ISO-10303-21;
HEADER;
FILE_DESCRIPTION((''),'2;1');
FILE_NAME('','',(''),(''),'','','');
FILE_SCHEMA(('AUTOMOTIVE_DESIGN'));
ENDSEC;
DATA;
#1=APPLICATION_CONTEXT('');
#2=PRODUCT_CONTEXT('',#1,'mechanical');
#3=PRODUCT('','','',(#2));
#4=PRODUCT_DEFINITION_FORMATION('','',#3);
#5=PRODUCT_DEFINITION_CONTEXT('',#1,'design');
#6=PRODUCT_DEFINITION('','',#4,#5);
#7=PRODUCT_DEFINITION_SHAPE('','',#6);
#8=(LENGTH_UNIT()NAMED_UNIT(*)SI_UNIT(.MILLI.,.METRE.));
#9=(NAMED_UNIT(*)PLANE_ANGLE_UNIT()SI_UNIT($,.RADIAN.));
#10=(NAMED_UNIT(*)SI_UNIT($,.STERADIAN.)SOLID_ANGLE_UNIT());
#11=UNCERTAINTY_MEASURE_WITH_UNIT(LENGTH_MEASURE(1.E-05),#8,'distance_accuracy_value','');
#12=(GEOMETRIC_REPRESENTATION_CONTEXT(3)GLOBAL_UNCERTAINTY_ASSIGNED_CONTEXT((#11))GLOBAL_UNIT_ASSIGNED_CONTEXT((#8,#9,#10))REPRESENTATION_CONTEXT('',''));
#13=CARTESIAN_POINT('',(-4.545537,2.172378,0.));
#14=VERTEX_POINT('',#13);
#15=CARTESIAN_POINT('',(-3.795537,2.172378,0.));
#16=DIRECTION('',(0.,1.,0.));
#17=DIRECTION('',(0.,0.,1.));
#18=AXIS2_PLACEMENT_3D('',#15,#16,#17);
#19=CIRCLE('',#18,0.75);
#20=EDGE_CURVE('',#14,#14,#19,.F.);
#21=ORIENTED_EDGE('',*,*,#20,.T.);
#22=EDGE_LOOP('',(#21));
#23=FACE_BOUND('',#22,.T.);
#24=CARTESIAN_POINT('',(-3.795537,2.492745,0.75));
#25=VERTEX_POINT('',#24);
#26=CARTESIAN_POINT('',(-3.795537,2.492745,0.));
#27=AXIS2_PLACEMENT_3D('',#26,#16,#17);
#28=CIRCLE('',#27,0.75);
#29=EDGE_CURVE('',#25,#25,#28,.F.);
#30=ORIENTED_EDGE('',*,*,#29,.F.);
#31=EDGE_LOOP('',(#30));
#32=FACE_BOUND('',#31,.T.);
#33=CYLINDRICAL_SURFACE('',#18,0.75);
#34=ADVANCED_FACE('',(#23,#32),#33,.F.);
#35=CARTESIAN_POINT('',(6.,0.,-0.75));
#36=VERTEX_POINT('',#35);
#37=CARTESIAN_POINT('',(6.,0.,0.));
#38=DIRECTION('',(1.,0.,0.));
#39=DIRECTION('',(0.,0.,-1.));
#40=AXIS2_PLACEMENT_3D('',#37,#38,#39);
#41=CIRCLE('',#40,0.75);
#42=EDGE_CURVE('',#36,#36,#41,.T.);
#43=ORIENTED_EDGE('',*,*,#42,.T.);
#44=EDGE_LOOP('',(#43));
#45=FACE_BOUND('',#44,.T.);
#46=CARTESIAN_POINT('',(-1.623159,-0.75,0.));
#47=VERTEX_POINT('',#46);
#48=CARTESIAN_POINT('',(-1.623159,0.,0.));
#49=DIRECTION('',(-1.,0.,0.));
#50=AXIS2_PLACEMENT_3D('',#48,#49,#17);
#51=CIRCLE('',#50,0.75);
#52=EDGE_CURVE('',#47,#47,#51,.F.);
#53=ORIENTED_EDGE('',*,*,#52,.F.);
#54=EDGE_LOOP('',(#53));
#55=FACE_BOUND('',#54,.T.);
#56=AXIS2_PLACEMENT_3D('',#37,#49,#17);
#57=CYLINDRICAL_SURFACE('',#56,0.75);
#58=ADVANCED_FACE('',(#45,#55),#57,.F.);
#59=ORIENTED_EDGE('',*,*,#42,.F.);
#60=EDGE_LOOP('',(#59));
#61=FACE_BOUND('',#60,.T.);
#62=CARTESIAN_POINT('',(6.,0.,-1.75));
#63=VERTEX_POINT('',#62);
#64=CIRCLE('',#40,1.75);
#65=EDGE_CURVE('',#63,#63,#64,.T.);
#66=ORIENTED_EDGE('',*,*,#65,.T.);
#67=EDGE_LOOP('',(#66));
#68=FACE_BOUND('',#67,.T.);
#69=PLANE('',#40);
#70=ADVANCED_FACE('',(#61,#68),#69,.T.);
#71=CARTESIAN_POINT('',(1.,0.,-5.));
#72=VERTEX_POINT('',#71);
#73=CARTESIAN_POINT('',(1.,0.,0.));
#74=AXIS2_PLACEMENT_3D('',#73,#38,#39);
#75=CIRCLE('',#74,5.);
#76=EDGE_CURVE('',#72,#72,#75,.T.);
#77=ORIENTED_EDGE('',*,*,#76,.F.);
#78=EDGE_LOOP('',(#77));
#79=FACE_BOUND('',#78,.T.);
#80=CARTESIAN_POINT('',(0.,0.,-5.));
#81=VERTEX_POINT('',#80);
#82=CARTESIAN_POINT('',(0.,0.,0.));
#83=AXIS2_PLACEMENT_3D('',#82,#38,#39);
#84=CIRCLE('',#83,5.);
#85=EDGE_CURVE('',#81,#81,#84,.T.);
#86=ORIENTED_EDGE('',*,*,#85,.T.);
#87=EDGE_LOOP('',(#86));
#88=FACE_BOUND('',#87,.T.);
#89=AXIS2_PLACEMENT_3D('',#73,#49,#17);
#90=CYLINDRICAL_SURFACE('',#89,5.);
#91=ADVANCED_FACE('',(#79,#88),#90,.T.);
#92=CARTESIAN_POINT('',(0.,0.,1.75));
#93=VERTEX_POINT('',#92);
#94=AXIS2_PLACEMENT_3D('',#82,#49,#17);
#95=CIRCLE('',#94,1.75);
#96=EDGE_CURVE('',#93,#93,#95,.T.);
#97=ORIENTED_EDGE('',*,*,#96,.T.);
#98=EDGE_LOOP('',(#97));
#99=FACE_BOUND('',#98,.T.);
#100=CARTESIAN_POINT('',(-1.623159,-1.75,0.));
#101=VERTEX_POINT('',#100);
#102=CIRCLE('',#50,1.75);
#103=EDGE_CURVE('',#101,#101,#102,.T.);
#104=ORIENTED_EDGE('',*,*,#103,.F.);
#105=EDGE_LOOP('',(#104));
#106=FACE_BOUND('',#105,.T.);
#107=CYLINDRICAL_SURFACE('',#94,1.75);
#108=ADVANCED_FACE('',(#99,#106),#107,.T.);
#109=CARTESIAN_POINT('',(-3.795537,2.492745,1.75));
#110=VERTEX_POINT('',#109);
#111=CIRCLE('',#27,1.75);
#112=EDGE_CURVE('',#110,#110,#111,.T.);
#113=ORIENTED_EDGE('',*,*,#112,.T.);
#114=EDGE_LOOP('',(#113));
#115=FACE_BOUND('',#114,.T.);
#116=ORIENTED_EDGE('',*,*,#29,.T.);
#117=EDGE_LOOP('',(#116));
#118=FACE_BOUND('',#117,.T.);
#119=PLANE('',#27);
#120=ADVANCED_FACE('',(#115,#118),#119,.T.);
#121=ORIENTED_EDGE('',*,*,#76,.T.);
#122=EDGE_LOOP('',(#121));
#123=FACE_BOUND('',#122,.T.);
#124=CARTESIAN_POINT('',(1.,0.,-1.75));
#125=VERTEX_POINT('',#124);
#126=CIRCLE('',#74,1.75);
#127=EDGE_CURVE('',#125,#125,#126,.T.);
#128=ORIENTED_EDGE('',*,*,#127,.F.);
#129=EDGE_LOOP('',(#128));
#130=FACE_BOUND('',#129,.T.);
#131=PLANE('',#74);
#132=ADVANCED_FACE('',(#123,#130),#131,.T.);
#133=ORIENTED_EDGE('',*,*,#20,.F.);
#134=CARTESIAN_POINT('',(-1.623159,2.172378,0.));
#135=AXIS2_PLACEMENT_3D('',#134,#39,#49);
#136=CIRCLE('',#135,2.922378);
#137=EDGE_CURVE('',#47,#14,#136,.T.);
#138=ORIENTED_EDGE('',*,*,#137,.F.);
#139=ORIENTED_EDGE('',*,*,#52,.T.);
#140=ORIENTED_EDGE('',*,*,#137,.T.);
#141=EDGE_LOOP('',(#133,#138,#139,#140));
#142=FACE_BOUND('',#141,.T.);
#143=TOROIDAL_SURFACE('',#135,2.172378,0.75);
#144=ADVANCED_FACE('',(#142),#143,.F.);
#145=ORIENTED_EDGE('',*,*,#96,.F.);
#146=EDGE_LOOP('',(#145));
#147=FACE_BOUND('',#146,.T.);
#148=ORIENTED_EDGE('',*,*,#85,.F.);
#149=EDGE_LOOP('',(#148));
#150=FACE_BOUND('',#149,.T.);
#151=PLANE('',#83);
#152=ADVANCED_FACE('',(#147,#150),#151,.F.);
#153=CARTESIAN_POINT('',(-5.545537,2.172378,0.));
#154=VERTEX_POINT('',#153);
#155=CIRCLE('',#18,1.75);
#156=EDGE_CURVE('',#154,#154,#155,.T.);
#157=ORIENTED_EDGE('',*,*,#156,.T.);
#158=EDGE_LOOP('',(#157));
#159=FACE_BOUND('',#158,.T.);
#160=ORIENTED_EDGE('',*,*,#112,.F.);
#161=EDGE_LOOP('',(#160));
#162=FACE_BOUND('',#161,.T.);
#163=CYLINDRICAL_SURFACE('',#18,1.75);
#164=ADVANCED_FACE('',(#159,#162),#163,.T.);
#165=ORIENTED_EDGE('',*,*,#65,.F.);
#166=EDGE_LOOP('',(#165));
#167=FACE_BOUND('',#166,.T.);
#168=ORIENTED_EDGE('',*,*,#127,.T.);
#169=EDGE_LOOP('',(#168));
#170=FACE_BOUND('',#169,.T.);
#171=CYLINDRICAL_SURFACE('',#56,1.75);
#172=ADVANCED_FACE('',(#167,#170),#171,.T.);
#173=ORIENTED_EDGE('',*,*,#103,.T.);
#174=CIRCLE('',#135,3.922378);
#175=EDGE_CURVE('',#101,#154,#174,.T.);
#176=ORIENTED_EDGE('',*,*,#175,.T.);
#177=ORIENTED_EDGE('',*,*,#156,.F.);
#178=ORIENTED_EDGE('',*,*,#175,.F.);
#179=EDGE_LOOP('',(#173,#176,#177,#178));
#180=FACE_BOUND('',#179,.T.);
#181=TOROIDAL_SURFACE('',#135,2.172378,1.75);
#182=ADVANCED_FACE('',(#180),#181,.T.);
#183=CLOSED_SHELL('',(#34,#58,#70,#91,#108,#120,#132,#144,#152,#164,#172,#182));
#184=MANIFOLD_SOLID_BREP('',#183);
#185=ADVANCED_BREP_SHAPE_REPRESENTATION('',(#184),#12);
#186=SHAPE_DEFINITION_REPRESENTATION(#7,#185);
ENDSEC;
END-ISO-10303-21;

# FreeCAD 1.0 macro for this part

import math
import FreeCAD as App
import Part
import Sketcher

doc = App.newDocument("Part")
params = doc.addObject("Spreadsheet::Sheet", "Params")
for row, (alias, value) in enumerate([
    ("sketch1_diameter", "10 mm"),
    ("pad1_length", "1 mm"),
    ("sketch2_diameter", "3.5 mm"),
    ("sketch2_diameter2", "1.5 mm"),
    ("pad2_length", "5 mm"),
    ("sketch3_diameter", "1.5 mm"),
    ("pocket1_length", "10 mm"),
    ("sketch4_diameter", "3.5 mm"),
    ("sketch4_diameter2", "1.5 mm"),
], start=1):
    params.set(f"A{row}", alias)
    params.set(f"B{row}", "=" + value)
    params.setAlias(f"B{row}", alias)

body = doc.addObject("PartDesign::Body", "Body")

sketch1 = body.newObject("Sketcher::SketchObject", "Sketch")
sketch1.AttachmentSupport = (doc.getObject("YZ_Plane"), [""])
sketch1.MapMode = "FlatFace"
sketch1.addGeometry(Part.Circle(App.Vector(0, 0, 0), App.Vector(0, 0, 1), 5), False)
sketch1.addConstraint([
    Sketcher.Constraint("Coincident", 0, 3, -1, 1),
    Sketcher.Constraint("Diameter", 0, 10.0),
])
sketch1.setExpression("Constraints[1]", "Params.sketch1_diameter")
pad1 = body.newObject("PartDesign::Pad", "Pad")
pad1.Profile = sketch1
pad1.setExpression("Length", "Params.pad1_length")

sketch2 = body.newObject("Sketcher::SketchObject", "Sketch001")
sketch2.AttachmentSupport = (doc.getObject("YZ_Plane"), [""])
sketch2.MapMode = "FlatFace"
sketch2.AttachmentOffset = App.Placement(App.Vector(0, 0, 1), App.Rotation())
sketch2.addGeometry([
    Part.Circle(App.Vector(0, 0, 0), App.Vector(0, 0, 1), 1.75),
    Part.Circle(App.Vector(0, 0, 0), App.Vector(0, 0, 1), 0.75),
], False)
sketch2.addConstraint([
    Sketcher.Constraint("Coincident", 0, 3, -1, 1),
    Sketcher.Constraint("Coincident", 1, 3, -1, 1),
    Sketcher.Constraint("Diameter", 0, 3.5),
    Sketcher.Constraint("Diameter", 1, 1.5),
])
sketch2.setExpression("Constraints[2]", "Params.sketch2_diameter")
sketch2.setExpression("Constraints[3]", "Params.sketch2_diameter2")
pad2 = body.newObject("PartDesign::Pad", "Pad001")
pad2.Profile = sketch2
pad2.setExpression("Length", "Params.pad2_length")

sketch3 = body.newObject("Sketcher::SketchObject", "Sketch002")
sketch3.AttachmentSupport = (doc.getObject("YZ_Plane"), [""])
sketch3.MapMode = "FlatFace"
sketch3.addGeometry(Part.Circle(App.Vector(0, 0, 0), App.Vector(0, 0, 1), 0.75), False)
sketch3.addConstraint([
    Sketcher.Constraint("Coincident", 0, 3, -1, 1),
    Sketcher.Constraint("Diameter", 0, 1.5),
])
sketch3.setExpression("Constraints[1]", "Params.sketch3_diameter")
pocket1 = body.newObject("PartDesign::Pocket", "Pocket")
pocket1.Profile = sketch3
pocket1.setExpression("Length", "Params.pocket1_length")
pocket1.Reversed = True

sketch4 = body.newObject("Sketcher::SketchObject", "Sketch003")
sketch4.AttachmentSupport = (doc.getObject("YZ_Plane"), [""])
sketch4.MapMode = "FlatFace"
sketch4.addGeometry([
    Part.Circle(App.Vector(0, 0, 0), App.Vector(0, 0, 1), 1.75),
    Part.Circle(App.Vector(0, 0, 0), App.Vector(0, 0, 1), 0.75),
], False)
sketch4.addConstraint([
    Sketcher.Constraint("Coincident", 0, 3, -1, 1),
    Sketcher.Constraint("Coincident", 1, 3, -1, 1),
    Sketcher.Constraint("Diameter", 0, 3.5),
    Sketcher.Constraint("Diameter", 1, 1.5),
])
sketch4.setExpression("Constraints[2]", "Params.sketch4_diameter")
sketch4.setExpression("Constraints[3]", "Params.sketch4_diameter2")

sketch5 = body.newObject("Sketcher::SketchObject", "Sketch004")
sketch5.AttachmentSupport = (doc.getObject("XY_Plane"), [""])
sketch5.MapMode = "FlatFace"
sketch5.addGeometry([
    Part.LineSegment(App.Vector(0, 1.75, 0), App.Vector(-1.623159, 1.75, 0)),
    Part.ArcOfCircle(Part.Circle(App.Vector(-1.623159, 2.172378, 0), App.Vector(0, 0, 1), 0.422378), math.radians(180), math.radians(270)),
    Part.LineSegment(App.Vector(-2.045537, 2.172378, 0), App.Vector(-2.045537, 2.492745, 0)),
], False)
sketch5.addConstraint([
    Sketcher.Constraint("Tangent", 0, 2, 1, 2),
    Sketcher.Constraint("Tangent", 1, 1, 2, 1),
    Sketcher.Constraint("Horizontal", 0),
    Sketcher.Constraint("Vertical", 2),
    Sketcher.Constraint("PointOnObject", 0, 1, -2),
    Sketcher.Constraint("DistanceY", -1, 1, 0, 1, 1.75),
    Sketcher.Constraint("Radius", 1, 0.422378),
    Sketcher.Constraint("DistanceX", 0, 2, 0, 1, 1.623159),
    Sketcher.Constraint("DistanceY", 2, 1, 2, 2, 0.320367),
])
doc.recompute()

additivepipe = body.newObject("PartDesign::AdditivePipe", "AdditivePipe")
additivepipe.Profile = sketch4
additivepipe.Spine = (sketch5, ["Edge1", "Edge2", "Edge3"])

doc.recompute()
